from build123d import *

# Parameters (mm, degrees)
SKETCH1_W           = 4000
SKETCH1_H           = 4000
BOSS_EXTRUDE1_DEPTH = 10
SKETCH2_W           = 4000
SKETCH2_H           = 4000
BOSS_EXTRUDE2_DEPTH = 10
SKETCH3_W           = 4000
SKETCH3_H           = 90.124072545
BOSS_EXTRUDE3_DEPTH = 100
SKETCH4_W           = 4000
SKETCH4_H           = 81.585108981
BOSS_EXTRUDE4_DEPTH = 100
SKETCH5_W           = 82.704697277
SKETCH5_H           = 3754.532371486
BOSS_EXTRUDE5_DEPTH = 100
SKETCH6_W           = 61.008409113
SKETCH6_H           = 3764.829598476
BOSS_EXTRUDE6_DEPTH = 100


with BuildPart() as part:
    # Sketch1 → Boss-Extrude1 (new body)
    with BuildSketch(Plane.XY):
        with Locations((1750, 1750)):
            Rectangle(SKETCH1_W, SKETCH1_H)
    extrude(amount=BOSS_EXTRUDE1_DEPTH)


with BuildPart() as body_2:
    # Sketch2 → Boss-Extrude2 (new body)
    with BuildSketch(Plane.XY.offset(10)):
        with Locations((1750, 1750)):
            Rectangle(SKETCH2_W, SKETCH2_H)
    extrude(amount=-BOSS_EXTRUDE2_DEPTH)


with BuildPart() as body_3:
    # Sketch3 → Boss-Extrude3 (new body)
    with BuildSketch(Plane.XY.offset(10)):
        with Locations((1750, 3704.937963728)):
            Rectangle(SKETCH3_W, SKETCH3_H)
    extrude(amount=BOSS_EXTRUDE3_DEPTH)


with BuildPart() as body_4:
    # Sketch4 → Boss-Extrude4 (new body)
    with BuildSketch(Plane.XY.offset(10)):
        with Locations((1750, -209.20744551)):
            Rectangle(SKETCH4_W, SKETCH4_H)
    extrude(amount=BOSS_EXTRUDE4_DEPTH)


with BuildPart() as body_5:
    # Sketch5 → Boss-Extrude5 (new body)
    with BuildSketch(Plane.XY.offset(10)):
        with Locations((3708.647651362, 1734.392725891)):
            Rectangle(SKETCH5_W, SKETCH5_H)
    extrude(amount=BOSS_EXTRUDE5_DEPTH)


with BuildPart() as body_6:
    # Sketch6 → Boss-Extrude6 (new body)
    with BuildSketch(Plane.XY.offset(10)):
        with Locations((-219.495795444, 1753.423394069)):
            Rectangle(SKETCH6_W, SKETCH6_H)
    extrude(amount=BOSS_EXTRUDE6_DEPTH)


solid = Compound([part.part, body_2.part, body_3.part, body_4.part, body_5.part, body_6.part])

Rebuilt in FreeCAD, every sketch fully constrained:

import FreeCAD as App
import Part
import Sketcher

V = App.Vector

doc = App.newDocument("Part")
body = doc.addObject("PartDesign::Body", "Body")

sketch1 = body.newObject("Sketcher::SketchObject", "Sketch")
sketch1.AttachmentSupport = (doc.getObject("XY_Plane"), [""])
sketch1.MapMode = "FlatFace"
sketch1.addGeometry([
    Part.LineSegment(V(-250, 3750, 0), V(-250, -250, 0)),
    Part.LineSegment(V(-250, -250, 0), V(3750, -250, 0)),
    Part.LineSegment(V(3750, -250, 0), V(3750, 3750, 0)),
    Part.LineSegment(V(3750, 3750, 0), V(-250, 3750, 0)),
], False)
sketch1.addConstraint([
    Sketcher.Constraint("Coincident", 0, 2, 1, 1),
    Sketcher.Constraint("Coincident", 1, 2, 2, 1),
    Sketcher.Constraint("Coincident", 2, 2, 3, 1),
    Sketcher.Constraint("Coincident", 3, 2, 0, 1),
    Sketcher.Constraint("Vertical", 0),
    Sketcher.Constraint("Horizontal", 1),
    Sketcher.Constraint("Vertical", 2),
    Sketcher.Constraint("Horizontal", 3),
    Sketcher.Constraint("Equal", 3, 0),
    Sketcher.Constraint("DistanceX", 1, 1, 1, 2, 4000.0),
    Sketcher.Constraint("DistanceX", 0, 2, -1, 1, 250.0),
    Sketcher.Constraint("DistanceY", 0, 2, -1, 1, 250.0),
])
pad1 = body.newObject("PartDesign::Pad", "Pad")
pad1.Profile = sketch1
pad1.Length = 10
body2 = doc.addObject("PartDesign::Body", "Body001")

sketch2 = body2.newObject("Sketcher::SketchObject", "Sketch001")
sketch2.AttachmentSupport = (doc.getObject("XY_Plane001"), [""])
sketch2.MapMode = "FlatFace"
sketch2.AttachmentOffset = App.Placement(V(0, 0, 10), App.Rotation())
sketch2.addGeometry([
    Part.LineSegment(V(-250, 3750, 0), V(-250, -250, 0)),
    Part.LineSegment(V(-250, -250, 0), V(3750, -250, 0)),
    Part.LineSegment(V(3750, -250, 0), V(3750, 3750, 0)),
    Part.LineSegment(V(3750, 3750, 0), V(-250, 3750, 0)),
], False)
sketch2.addConstraint([
    Sketcher.Constraint("Coincident", 0, 2, 1, 1),
    Sketcher.Constraint("Coincident", 1, 2, 2, 1),
    Sketcher.Constraint("Coincident", 2, 2, 3, 1),
    Sketcher.Constraint("Coincident", 3, 2, 0, 1),
    Sketcher.Constraint("Vertical", 0),
    Sketcher.Constraint("Horizontal", 1),
    Sketcher.Constraint("Vertical", 2),
    Sketcher.Constraint("Horizontal", 3),
    Sketcher.Constraint("Equal", 3, 0),
    Sketcher.Constraint("DistanceX", 1, 1, 1, 2, 4000.0),
    Sketcher.Constraint("DistanceX", 0, 2, -1, 1, 250.0),
    Sketcher.Constraint("DistanceY", 0, 2, -1, 1, 250.0),
])
pad2 = body2.newObject("PartDesign::Pad", "Pad001")
pad2.Profile = sketch2
pad2.Length = 10
pad2.Reversed = True
body3 = doc.addObject("PartDesign::Body", "Body002")

sketch3 = body3.newObject("Sketcher::SketchObject", "Sketch002")
sketch3.AttachmentSupport = (doc.getObject("XY_Plane002"), [""])
sketch3.MapMode = "FlatFace"
sketch3.AttachmentOffset = App.Placement(V(0, 0, 10), App.Rotation())
sketch3.addGeometry([
    Part.LineSegment(V(-250, 3750, 0), V(-250, 3659.875927, 0)),
    Part.LineSegment(V(-250, 3659.875927, 0), V(3750, 3659.875927, 0)),
    Part.LineSegment(V(3750, 3659.875927, 0), V(3750, 3750, 0)),
    Part.LineSegment(V(3750, 3750, 0), V(-250, 3750, 0)),
], False)
sketch3.addConstraint([
    Sketcher.Constraint("Coincident", 0, 2, 1, 1),
    Sketcher.Constraint("Coincident", 1, 2, 2, 1),
    Sketcher.Constraint("Coincident", 2, 2, 3, 1),
    Sketcher.Constraint("Coincident", 3, 2, 0, 1),
    Sketcher.Constraint("Vertical", 0),
    Sketcher.Constraint("Horizontal", 1),
    Sketcher.Constraint("Vertical", 2),
    Sketcher.Constraint("Horizontal", 3),
    Sketcher.Constraint("DistanceX", 1, 1, 1, 2, 4000.0),
    Sketcher.Constraint("DistanceX", 0, 2, -1, 1, 250.0),
    Sketcher.Constraint("DistanceY", -1, 1, 2, 2, 3750.0),
    Sketcher.Constraint("DistanceY", 0, 2, 0, 1, 90.124073),
])
pad3 = body3.newObject("PartDesign::Pad", "Pad002")
pad3.Profile = sketch3
pad3.Length = 100
body4 = doc.addObject("PartDesign::Body", "Body003")

sketch4 = body4.newObject("Sketcher::SketchObject", "Sketch003")
sketch4.AttachmentSupport = (doc.getObject("XY_Plane003"), [""])
sketch4.MapMode = "FlatFace"
sketch4.AttachmentOffset = App.Placement(V(0, 0, 10), App.Rotation())
sketch4.addGeometry([
    Part.LineSegment(V(-250, -168.414891, 0), V(-250, -250, 0)),
    Part.LineSegment(V(-250, -250, 0), V(3750, -250, 0)),
    Part.LineSegment(V(3750, -250, 0), V(3750, -168.414891, 0)),
    Part.LineSegment(V(3750, -168.414891, 0), V(-250, -168.414891, 0)),
], False)
sketch4.addConstraint([
    Sketcher.Constraint("Coincident", 0, 2, 1, 1),
    Sketcher.Constraint("Coincident", 1, 2, 2, 1),
    Sketcher.Constraint("Coincident", 2, 2, 3, 1),
    Sketcher.Constraint("Coincident", 3, 2, 0, 1),
    Sketcher.Constraint("Vertical", 0),
    Sketcher.Constraint("Horizontal", 1),
    Sketcher.Constraint("Vertical", 2),
    Sketcher.Constraint("Horizontal", 3),
    Sketcher.Constraint("DistanceX", 1, 1, 1, 2, 4000.0),
    Sketcher.Constraint("DistanceX", 0, 2, -1, 1, 250.0),
    Sketcher.Constraint("DistanceY", 0, 2, -1, 1, 250.0),
    Sketcher.Constraint("DistanceY", 0, 2, 0, 1, 81.585109),
])
pad4 = body4.newObject("PartDesign::Pad", "Pad003")
pad4.Profile = sketch4
pad4.Length = 100
body5 = doc.addObject("PartDesign::Body", "Body004")

sketch5 = body5.newObject("Sketcher::SketchObject", "Sketch004")
sketch5.AttachmentSupport = (doc.getObject("XY_Plane004"), [""])
sketch5.MapMode = "FlatFace"
sketch5.AttachmentOffset = App.Placement(V(0, 0, 10), App.Rotation())
sketch5.addGeometry([
    Part.LineSegment(V(3667.295303, 3611.658912, 0), V(3667.295303, -142.87346, 0)),
    Part.LineSegment(V(3667.295303, -142.87346, 0), V(3750, -142.87346, 0)),
    Part.LineSegment(V(3750, -142.87346, 0), V(3750, 3611.658912, 0)),
    Part.LineSegment(V(3750, 3611.658912, 0), V(3667.295303, 3611.658912, 0)),
], False)
sketch5.addConstraint([
    Sketcher.Constraint("Coincident", 0, 2, 1, 1),
    Sketcher.Constraint("Coincident", 1, 2, 2, 1),
    Sketcher.Constraint("Coincident", 2, 2, 3, 1),
    Sketcher.Constraint("Coincident", 3, 2, 0, 1),
    Sketcher.Constraint("Vertical", 0),
    Sketcher.Constraint("Horizontal", 1),
    Sketcher.Constraint("Vertical", 2),
    Sketcher.Constraint("Horizontal", 3),
    Sketcher.Constraint("DistanceX", -1, 1, 1, 2, 3750.0),
    Sketcher.Constraint("DistanceY", 0, 2, 0, 1, 3754.532371),
    Sketcher.Constraint("DistanceX", 1, 1, 1, 2, 82.704697),
    Sketcher.Constraint("DistanceY", 0, 2, -1, 1, 142.87346),
])
pad5 = body5.newObject("PartDesign::Pad", "Pad004")
pad5.Profile = sketch5
pad5.Length = 100
body6 = doc.addObject("PartDesign::Body", "Body005")

sketch6 = body6.newObject("Sketcher::SketchObject", "Sketch005")
sketch6.AttachmentSupport = (doc.getObject("XY_Plane005"), [""])
sketch6.MapMode = "FlatFace"
sketch6.AttachmentOffset = App.Placement(V(0, 0, 10), App.Rotation())
sketch6.addGeometry([
    Part.LineSegment(V(-250, 3635.838193, 0), V(-250, -128.991405, 0)),
    Part.LineSegment(V(-250, -128.991405, 0), V(-188.991591, -128.991405, 0)),
    Part.LineSegment(V(-188.991591, -128.991405, 0), V(-188.991591, 3635.838193, 0)),
    Part.LineSegment(V(-188.991591, 3635.838193, 0), V(-250, 3635.838193, 0)),
], False)
sketch6.addConstraint([
    Sketcher.Constraint("Coincident", 0, 2, 1, 1),
    Sketcher.Constraint("Coincident", 1, 2, 2, 1),
    Sketcher.Constraint("Coincident", 2, 2, 3, 1),
    Sketcher.Constraint("Coincident", 3, 2, 0, 1),
    Sketcher.Constraint("Vertical", 0),
    Sketcher.Constraint("Horizontal", 1),
    Sketcher.Constraint("Vertical", 2),
    Sketcher.Constraint("Horizontal", 3),
    Sketcher.Constraint("DistanceX", 0, 2, -1, 1, 250.0),
    Sketcher.Constraint("DistanceY", 0, 2, 0, 1, 3764.829598),
    Sketcher.Constraint("DistanceX", 1, 1, 1, 2, 61.008409),
    Sketcher.Constraint("DistanceY", 0, 2, -1, 1, 128.991405),
])
pad6 = body6.newObject("PartDesign::Pad", "Pad005")
pad6.Profile = sketch6
pad6.Length = 100

doc.recompute()
